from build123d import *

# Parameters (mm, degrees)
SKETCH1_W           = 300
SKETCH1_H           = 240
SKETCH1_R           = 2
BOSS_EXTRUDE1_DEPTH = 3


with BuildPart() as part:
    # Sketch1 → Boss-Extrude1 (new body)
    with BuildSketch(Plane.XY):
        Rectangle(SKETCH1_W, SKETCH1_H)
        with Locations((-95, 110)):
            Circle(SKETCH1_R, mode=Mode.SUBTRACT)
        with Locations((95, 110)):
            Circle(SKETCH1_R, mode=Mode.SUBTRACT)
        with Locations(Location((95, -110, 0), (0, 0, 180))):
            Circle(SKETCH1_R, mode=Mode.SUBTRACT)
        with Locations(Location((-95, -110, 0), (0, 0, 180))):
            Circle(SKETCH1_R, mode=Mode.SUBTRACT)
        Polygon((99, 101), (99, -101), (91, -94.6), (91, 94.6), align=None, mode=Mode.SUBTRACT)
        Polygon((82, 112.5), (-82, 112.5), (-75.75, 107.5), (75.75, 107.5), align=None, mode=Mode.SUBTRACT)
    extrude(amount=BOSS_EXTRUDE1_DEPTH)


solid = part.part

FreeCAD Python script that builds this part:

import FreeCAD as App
import Part
import Sketcher
from FreeCAD import Vector


def add_polygon(sketch, points):
    """Adds a closed chain of lines whose ends are joined by coincident constraints."""
    first, n = sketch.GeometryCount, len(points)
    for a, b in zip(points, points[1:] + points[:1]):
        sketch.addGeometry(Part.LineSegment(App.Vector(*a, 0), App.Vector(*b, 0)), False)
    for i in range(n):
        sketch.addConstraint(Sketcher.Constraint("Coincident", first + i, 2, first + (i + 1) % n, 1))

doc = App.newDocument("Part")
body = doc.addObject("PartDesign::Body", "Body")

# Sketch on XY plane
sketch1 = body.newObject("Sketcher::SketchObject", "Sketch")
sketch1.AttachmentSupport = (doc.getObject("XY_Plane"), [""])
sketch1.MapMode = "FlatFace"
add_polygon(sketch1, [(-150, 120), (-150, -120), (150, -120), (150, 120)])  # lines 0-3
sketch1.addGeometry(Part.Circle(Vector(-95, -110, 0), Vector(0, 0, 1), 2), False)  # 4
sketch1.addGeometry(Part.Circle(Vector(95, -110, 0), Vector(0, 0, 1), 2), False)  # 5
add_polygon(sketch1, [(91, 94.6), (99, 101), (99, -101), (91, -94.6)])  # lines 6-9
sketch1.addGeometry(Part.Circle(Vector(-95, 110, 0), Vector(0, 0, 1), 2), False)  # 10
add_polygon(sketch1, [(-82, 112.5), (82, 112.5), (75.8, 107.5), (-75.8, 107.5)])  # lines 11-14
sketch1.addGeometry(Part.Circle(Vector(95, 110, 0), Vector(0, 0, 1), 2), False)  # 15
sketch1.addConstraint(Sketcher.Constraint("Vertical", 0))
sketch1.addConstraint(Sketcher.Constraint("Horizontal", 1))
sketch1.addConstraint(Sketcher.Constraint("Vertical", 2))
sketch1.addConstraint(Sketcher.Constraint("Horizontal", 3))
sketch1.addConstraint(Sketcher.Constraint("Vertical", 7))
sketch1.addConstraint(Sketcher.Constraint("Vertical", 9))
sketch1.addConstraint(Sketcher.Constraint("Horizontal", 11))
sketch1.addConstraint(Sketcher.Constraint("Horizontal", 13))
sketch1.addConstraint(Sketcher.Constraint("Equal", 4, 5))
sketch1.addConstraint(Sketcher.Constraint("Equal", 5, 10))
sketch1.addConstraint(Sketcher.Constraint("Equal", 10, 15))
sketch1.addConstraint(Sketcher.Constraint("Symmetric", 5, 3, 10, 3, -1, 1))
sketch1.addConstraint(Sketcher.Constraint("Symmetric", 4, 3, 15, 3, -1, 1))
sketch1.addConstraint(Sketcher.Constraint("Symmetric", 0, 2, 2, 2, -1, 1))
sketch1.addConstraint(Sketcher.Constraint("Symmetric", 4, 3, 5, 3, -2))
sketch1.addConstraint(Sketcher.Constraint("Parallel", 6, 12))
sketch1.addConstraint(Sketcher.Constraint("Parallel", 8, 14))
sketch1.addConstraint(Sketcher.Constraint("Equal", 6, 8))
sketch1.addConstraint(Sketcher.Constraint("Diameter", 4, 4.0))
sketch1.addConstraint(Sketcher.Constraint("DistanceX", 1, 1, 1, 2, 300.0))
sketch1.addConstraint(Sketcher.Constraint("DistanceX", 11, 1, 11, 2, 164.0))
sketch1.addConstraint(Sketcher.Constraint("DistanceY", 0, 2, 0, 1, 240.0))
sketch1.addConstraint(Sketcher.Constraint("DistanceY", 7, 2, 7, 1, 202.0))
sketch1.addConstraint(Sketcher.Constraint("DistanceX", 13, 2, 13, 1, 151.5))
sketch1.addConstraint(Sketcher.Constraint("DistanceY", 9, 1, 9, 2, 189.2))
sketch1.addConstraint(Sketcher.Constraint("DistanceX", 4, 3, -1, 1, 95.0))
sketch1.addConstraint(Sketcher.Constraint("DistanceY", 4, 3, -1, 1, 110.0))
sketch1.addConstraint(Sketcher.Constraint("DistanceX", -1, 1, 6, 2, 99.0))
sketch1.addConstraint(Sketcher.Constraint("DistanceY", -1, 1, 6, 2, 101.0))
sketch1.addConstraint(Sketcher.Constraint("DistanceX", -1, 1, 8, 2, 91.0))
sketch1.addConstraint(Sketcher.Constraint("DistanceX", -1, 1, 11, 2, 82.0))
sketch1.addConstraint(Sketcher.Constraint("DistanceY", -1, 1, 11, 2, 112.5))
pad1 = body.newObject("PartDesign::Pad", "Pad")
pad1.Profile = sketch1
pad1.Length = 3

doc.recompute()
